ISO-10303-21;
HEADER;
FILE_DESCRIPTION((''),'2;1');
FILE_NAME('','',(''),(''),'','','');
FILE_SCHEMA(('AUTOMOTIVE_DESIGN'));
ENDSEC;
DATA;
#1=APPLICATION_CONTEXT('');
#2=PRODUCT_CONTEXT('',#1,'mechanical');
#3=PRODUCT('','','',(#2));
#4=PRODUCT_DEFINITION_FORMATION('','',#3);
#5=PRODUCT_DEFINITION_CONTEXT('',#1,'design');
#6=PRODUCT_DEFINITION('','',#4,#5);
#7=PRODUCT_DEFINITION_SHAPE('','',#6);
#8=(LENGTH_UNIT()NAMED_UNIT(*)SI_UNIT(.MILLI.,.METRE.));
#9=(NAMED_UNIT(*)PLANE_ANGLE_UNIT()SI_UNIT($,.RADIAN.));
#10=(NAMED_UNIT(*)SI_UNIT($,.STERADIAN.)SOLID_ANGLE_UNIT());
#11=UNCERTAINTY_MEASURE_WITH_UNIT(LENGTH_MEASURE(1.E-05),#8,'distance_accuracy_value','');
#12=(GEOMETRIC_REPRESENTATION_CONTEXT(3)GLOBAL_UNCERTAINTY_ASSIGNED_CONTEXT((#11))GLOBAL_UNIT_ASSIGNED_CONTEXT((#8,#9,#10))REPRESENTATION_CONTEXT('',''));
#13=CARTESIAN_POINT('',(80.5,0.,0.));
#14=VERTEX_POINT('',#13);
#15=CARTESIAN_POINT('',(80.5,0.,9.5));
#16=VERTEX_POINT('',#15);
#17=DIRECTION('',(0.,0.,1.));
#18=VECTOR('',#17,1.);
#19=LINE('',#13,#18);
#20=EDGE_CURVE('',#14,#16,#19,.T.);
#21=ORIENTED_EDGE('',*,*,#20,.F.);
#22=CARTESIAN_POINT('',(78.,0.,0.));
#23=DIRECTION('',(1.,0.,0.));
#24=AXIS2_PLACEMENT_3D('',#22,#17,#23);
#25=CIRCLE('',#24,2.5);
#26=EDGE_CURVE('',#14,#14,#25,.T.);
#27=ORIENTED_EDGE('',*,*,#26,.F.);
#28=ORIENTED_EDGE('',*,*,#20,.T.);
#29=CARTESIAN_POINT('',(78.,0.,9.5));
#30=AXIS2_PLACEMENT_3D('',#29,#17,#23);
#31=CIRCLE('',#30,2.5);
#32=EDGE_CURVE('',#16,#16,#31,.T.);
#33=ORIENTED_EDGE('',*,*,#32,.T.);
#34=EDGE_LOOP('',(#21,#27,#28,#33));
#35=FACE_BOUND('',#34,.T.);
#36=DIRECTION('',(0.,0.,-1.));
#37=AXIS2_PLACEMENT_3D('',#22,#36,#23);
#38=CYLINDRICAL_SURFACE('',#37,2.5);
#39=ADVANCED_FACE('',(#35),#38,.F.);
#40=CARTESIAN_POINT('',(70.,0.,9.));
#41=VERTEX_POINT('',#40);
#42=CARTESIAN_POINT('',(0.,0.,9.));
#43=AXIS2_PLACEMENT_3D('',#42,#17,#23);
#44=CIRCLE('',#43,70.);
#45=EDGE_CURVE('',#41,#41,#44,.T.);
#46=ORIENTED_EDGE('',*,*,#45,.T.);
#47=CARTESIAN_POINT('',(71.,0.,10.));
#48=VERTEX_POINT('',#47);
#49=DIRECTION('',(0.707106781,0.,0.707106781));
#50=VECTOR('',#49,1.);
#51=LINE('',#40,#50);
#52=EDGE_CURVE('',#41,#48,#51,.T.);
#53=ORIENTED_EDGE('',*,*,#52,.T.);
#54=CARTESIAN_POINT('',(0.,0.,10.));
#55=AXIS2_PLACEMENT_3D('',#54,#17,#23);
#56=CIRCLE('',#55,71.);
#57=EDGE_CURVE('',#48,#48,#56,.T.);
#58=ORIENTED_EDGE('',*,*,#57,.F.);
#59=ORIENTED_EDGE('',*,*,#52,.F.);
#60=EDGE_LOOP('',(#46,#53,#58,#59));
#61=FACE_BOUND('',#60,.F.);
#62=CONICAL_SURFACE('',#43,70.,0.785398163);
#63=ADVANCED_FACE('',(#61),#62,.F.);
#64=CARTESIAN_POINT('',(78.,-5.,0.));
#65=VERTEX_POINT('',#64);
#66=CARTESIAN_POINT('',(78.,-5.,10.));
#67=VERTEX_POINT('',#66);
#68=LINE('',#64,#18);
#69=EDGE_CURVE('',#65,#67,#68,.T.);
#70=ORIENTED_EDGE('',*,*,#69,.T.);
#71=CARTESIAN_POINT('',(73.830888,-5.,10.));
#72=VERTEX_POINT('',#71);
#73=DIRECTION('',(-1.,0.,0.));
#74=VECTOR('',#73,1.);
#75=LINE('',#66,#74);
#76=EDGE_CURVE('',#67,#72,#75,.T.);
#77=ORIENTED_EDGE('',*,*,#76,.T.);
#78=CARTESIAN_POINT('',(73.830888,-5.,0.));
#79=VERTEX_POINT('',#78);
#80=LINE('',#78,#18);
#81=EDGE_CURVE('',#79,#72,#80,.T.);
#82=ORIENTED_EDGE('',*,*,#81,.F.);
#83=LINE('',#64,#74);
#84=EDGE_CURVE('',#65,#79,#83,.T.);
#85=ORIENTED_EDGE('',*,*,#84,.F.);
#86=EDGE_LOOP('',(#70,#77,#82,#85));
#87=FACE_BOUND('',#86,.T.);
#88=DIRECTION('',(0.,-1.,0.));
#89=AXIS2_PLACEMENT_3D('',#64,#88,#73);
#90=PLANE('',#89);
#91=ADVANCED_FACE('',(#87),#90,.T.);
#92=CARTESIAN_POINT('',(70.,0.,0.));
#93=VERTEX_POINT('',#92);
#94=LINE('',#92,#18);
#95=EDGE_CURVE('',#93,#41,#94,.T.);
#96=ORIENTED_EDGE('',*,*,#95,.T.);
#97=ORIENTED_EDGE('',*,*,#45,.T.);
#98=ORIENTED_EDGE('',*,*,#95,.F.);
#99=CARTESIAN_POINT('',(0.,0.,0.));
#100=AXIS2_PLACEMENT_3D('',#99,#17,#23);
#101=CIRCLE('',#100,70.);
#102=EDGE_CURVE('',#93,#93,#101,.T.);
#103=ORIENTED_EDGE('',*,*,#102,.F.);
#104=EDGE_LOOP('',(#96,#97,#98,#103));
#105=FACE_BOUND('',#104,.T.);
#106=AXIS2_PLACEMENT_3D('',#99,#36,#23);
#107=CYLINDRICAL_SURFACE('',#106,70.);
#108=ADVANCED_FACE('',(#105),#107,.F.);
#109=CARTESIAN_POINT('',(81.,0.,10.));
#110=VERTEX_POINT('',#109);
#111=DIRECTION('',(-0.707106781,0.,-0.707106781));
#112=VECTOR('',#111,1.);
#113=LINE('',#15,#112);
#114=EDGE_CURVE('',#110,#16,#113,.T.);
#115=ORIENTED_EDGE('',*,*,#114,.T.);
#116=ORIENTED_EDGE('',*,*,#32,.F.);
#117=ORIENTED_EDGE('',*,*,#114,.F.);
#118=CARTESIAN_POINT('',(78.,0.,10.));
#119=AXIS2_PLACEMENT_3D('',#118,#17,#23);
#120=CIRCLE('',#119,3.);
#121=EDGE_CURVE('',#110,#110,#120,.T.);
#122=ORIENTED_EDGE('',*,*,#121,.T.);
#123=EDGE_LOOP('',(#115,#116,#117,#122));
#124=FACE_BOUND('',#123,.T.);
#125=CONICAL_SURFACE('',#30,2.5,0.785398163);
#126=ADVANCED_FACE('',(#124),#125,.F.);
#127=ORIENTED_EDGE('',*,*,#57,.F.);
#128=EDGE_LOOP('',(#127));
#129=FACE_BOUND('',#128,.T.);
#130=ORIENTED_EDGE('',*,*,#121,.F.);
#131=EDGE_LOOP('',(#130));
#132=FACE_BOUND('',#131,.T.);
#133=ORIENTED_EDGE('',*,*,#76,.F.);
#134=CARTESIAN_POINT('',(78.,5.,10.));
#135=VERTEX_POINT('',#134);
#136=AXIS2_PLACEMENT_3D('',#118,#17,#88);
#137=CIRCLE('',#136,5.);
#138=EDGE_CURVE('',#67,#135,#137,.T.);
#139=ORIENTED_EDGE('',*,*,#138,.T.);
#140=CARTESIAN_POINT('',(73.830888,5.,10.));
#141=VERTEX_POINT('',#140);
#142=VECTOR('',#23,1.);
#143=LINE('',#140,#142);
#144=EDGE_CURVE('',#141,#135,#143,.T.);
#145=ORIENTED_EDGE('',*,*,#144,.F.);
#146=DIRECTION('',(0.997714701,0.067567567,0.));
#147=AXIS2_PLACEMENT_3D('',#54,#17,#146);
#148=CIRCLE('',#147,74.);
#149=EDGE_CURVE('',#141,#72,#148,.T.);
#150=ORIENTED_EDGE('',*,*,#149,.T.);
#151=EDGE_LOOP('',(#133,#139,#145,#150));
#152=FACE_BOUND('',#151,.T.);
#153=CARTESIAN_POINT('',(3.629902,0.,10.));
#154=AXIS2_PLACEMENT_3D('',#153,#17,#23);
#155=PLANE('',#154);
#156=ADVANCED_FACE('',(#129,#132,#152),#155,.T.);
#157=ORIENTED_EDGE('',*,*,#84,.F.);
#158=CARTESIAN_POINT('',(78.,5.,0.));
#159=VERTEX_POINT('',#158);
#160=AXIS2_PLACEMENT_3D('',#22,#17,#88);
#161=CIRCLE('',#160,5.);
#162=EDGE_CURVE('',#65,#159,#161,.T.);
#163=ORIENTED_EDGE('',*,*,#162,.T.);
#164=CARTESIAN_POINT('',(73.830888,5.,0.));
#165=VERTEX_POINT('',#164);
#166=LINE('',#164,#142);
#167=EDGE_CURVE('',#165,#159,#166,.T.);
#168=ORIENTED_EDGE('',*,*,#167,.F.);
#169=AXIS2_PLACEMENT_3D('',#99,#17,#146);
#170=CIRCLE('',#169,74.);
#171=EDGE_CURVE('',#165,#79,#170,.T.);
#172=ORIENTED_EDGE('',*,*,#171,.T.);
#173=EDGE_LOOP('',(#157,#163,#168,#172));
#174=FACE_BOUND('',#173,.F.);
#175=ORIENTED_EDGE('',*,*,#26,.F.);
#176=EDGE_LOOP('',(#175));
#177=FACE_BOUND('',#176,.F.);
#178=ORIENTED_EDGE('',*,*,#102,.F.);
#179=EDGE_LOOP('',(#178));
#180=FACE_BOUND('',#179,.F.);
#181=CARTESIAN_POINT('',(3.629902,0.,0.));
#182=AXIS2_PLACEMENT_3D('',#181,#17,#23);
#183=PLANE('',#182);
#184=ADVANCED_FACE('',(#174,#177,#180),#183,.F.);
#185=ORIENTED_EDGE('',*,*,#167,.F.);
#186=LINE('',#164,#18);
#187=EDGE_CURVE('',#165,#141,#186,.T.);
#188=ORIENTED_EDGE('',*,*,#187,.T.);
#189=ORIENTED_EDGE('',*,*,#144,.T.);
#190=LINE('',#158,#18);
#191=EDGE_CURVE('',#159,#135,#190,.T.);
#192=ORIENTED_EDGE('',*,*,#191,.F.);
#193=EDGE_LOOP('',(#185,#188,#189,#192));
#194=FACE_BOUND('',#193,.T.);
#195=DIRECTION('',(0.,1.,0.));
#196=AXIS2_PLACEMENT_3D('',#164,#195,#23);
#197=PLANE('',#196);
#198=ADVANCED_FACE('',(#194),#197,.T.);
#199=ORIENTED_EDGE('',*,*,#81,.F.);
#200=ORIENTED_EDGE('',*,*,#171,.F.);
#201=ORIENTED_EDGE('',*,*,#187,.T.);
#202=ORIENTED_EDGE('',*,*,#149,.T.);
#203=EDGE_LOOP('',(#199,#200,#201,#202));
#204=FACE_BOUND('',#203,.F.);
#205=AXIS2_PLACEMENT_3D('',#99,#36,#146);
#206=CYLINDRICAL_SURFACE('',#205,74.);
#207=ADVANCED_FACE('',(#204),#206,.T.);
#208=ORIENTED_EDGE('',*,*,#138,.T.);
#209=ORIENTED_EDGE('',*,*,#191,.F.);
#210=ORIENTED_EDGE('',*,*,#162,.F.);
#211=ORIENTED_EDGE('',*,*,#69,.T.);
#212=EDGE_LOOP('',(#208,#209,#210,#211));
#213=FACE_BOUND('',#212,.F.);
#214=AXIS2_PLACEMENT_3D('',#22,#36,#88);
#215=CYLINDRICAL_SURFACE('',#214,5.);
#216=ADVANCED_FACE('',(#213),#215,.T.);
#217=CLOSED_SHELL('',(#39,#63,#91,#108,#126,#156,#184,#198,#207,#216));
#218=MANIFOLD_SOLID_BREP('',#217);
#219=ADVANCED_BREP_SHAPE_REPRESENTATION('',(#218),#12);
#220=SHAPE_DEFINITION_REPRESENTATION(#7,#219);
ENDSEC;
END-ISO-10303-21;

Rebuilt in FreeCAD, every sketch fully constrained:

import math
import FreeCAD as App
import Part
import Sketcher

V = App.Vector


def edges_at(feature, points):
    """Names of the edges that pass closest to the given points."""
    edges = feature.Shape.Edges
    near = lambda p: min(range(len(edges)), key=lambda i: edges[i].distToShape(Part.Vertex(*p))[0])
    return sorted({f"Edge{near(p) + 1}" for p in points})

doc = App.newDocument("Part")
params = doc.addObject("Spreadsheet::Sheet", "Params")
for row, (alias, value) in enumerate([
    ("sketch1_diameter", "140 mm"),
    ("sketch1_diameter2", "5 mm"),
    ("sketch1_radius", "74 mm"),
    ("sketch1_radius2", "5 mm"),
    ("pad1_length", "10 mm"),
    ("chamfer_size", "1 mm"),
    ("chamfer2_size", "0.5 mm"),
], start=1):
    params.set(f"A{row}", alias)
    params.set(f"B{row}", "=" + value)
    params.setAlias(f"B{row}", alias)

body = doc.addObject("PartDesign::Body", "Body")

sketch1 = body.newObject("Sketcher::SketchObject", "Sketch")
sketch1.AttachmentSupport = (doc.getObject("XY_Plane"), [""])
sketch1.MapMode = "FlatFace"
sketch1.addGeometry([
    Part.ArcOfCircle(Part.Circle(V(0, 0, 0), V(0, 0, 1), 74), math.radians(4), math.radians(356)),
    Part.LineSegment(V(73.8, -5, 0), V(78, -5, 0)),
    Part.ArcOfCircle(Part.Circle(V(78, 0, 0), V(0, 0, 1), 5), math.radians(-90), math.radians(90)),
    Part.LineSegment(V(78, 5, 0), V(73.8, 5, 0)),
    Part.Circle(V(0, 0, 0), V(0, 0, 1), 70),
    Part.Circle(V(78, 0, 0), V(0, 0, 1), 2.5),
], False)
sketch1.addConstraint([
    Sketcher.Constraint("Coincident", 0, 2, 1, 1),
    Sketcher.Constraint("Tangent", 1, 2, 2, 1),
    Sketcher.Constraint("Tangent", 2, 2, 3, 1),
    Sketcher.Constraint("Coincident", 3, 2, 0, 1),
    Sketcher.Constraint("Horizontal", 1),
    Sketcher.Constraint("Horizontal", 3),
    Sketcher.Constraint("Coincident", 0, 3, -1, 1),
    Sketcher.Constraint("Coincident", 4, 3, -1, 1),
    Sketcher.Constraint("Coincident", 5, 3, 2, 3),
    Sketcher.Constraint("PointOnObject", 2, 3, -1),
    Sketcher.Constraint("Diameter", 4, 140.0),
    Sketcher.Constraint("Diameter", 5, 5.0),
    Sketcher.Constraint("Radius", 0, 74.0),
    Sketcher.Constraint("Radius", 2, 5.0),
    Sketcher.Constraint("DistanceX", -1, 1, 2, 3, 78.0),
])
sketch1.setExpression("Constraints[10]", "Params.sketch1_diameter")
sketch1.setExpression("Constraints[11]", "Params.sketch1_diameter2")
sketch1.setExpression("Constraints[12]", "Params.sketch1_radius")
sketch1.setExpression("Constraints[13]", "Params.sketch1_radius2")
pad1 = body.newObject("PartDesign::Pad", "Pad")
pad1.Profile = sketch1
pad1.setExpression("Length", "Params.pad1_length")
doc.recompute()

chamfer = body.newObject("PartDesign::Chamfer", "Chamfer")
chamfer.Base = (pad1, edges_at(pad1, [(-70, 0, 10)]))
chamfer.setExpression("Size", "Params.chamfer_size")
doc.recompute()

chamfer2 = body.newObject("PartDesign::Chamfer", "Chamfer001")
chamfer2.Base = (chamfer, edges_at(chamfer, [(75.5, 0, 10)]))
chamfer2.setExpression("Size", "Params.chamfer2_size")

doc.recompute()
